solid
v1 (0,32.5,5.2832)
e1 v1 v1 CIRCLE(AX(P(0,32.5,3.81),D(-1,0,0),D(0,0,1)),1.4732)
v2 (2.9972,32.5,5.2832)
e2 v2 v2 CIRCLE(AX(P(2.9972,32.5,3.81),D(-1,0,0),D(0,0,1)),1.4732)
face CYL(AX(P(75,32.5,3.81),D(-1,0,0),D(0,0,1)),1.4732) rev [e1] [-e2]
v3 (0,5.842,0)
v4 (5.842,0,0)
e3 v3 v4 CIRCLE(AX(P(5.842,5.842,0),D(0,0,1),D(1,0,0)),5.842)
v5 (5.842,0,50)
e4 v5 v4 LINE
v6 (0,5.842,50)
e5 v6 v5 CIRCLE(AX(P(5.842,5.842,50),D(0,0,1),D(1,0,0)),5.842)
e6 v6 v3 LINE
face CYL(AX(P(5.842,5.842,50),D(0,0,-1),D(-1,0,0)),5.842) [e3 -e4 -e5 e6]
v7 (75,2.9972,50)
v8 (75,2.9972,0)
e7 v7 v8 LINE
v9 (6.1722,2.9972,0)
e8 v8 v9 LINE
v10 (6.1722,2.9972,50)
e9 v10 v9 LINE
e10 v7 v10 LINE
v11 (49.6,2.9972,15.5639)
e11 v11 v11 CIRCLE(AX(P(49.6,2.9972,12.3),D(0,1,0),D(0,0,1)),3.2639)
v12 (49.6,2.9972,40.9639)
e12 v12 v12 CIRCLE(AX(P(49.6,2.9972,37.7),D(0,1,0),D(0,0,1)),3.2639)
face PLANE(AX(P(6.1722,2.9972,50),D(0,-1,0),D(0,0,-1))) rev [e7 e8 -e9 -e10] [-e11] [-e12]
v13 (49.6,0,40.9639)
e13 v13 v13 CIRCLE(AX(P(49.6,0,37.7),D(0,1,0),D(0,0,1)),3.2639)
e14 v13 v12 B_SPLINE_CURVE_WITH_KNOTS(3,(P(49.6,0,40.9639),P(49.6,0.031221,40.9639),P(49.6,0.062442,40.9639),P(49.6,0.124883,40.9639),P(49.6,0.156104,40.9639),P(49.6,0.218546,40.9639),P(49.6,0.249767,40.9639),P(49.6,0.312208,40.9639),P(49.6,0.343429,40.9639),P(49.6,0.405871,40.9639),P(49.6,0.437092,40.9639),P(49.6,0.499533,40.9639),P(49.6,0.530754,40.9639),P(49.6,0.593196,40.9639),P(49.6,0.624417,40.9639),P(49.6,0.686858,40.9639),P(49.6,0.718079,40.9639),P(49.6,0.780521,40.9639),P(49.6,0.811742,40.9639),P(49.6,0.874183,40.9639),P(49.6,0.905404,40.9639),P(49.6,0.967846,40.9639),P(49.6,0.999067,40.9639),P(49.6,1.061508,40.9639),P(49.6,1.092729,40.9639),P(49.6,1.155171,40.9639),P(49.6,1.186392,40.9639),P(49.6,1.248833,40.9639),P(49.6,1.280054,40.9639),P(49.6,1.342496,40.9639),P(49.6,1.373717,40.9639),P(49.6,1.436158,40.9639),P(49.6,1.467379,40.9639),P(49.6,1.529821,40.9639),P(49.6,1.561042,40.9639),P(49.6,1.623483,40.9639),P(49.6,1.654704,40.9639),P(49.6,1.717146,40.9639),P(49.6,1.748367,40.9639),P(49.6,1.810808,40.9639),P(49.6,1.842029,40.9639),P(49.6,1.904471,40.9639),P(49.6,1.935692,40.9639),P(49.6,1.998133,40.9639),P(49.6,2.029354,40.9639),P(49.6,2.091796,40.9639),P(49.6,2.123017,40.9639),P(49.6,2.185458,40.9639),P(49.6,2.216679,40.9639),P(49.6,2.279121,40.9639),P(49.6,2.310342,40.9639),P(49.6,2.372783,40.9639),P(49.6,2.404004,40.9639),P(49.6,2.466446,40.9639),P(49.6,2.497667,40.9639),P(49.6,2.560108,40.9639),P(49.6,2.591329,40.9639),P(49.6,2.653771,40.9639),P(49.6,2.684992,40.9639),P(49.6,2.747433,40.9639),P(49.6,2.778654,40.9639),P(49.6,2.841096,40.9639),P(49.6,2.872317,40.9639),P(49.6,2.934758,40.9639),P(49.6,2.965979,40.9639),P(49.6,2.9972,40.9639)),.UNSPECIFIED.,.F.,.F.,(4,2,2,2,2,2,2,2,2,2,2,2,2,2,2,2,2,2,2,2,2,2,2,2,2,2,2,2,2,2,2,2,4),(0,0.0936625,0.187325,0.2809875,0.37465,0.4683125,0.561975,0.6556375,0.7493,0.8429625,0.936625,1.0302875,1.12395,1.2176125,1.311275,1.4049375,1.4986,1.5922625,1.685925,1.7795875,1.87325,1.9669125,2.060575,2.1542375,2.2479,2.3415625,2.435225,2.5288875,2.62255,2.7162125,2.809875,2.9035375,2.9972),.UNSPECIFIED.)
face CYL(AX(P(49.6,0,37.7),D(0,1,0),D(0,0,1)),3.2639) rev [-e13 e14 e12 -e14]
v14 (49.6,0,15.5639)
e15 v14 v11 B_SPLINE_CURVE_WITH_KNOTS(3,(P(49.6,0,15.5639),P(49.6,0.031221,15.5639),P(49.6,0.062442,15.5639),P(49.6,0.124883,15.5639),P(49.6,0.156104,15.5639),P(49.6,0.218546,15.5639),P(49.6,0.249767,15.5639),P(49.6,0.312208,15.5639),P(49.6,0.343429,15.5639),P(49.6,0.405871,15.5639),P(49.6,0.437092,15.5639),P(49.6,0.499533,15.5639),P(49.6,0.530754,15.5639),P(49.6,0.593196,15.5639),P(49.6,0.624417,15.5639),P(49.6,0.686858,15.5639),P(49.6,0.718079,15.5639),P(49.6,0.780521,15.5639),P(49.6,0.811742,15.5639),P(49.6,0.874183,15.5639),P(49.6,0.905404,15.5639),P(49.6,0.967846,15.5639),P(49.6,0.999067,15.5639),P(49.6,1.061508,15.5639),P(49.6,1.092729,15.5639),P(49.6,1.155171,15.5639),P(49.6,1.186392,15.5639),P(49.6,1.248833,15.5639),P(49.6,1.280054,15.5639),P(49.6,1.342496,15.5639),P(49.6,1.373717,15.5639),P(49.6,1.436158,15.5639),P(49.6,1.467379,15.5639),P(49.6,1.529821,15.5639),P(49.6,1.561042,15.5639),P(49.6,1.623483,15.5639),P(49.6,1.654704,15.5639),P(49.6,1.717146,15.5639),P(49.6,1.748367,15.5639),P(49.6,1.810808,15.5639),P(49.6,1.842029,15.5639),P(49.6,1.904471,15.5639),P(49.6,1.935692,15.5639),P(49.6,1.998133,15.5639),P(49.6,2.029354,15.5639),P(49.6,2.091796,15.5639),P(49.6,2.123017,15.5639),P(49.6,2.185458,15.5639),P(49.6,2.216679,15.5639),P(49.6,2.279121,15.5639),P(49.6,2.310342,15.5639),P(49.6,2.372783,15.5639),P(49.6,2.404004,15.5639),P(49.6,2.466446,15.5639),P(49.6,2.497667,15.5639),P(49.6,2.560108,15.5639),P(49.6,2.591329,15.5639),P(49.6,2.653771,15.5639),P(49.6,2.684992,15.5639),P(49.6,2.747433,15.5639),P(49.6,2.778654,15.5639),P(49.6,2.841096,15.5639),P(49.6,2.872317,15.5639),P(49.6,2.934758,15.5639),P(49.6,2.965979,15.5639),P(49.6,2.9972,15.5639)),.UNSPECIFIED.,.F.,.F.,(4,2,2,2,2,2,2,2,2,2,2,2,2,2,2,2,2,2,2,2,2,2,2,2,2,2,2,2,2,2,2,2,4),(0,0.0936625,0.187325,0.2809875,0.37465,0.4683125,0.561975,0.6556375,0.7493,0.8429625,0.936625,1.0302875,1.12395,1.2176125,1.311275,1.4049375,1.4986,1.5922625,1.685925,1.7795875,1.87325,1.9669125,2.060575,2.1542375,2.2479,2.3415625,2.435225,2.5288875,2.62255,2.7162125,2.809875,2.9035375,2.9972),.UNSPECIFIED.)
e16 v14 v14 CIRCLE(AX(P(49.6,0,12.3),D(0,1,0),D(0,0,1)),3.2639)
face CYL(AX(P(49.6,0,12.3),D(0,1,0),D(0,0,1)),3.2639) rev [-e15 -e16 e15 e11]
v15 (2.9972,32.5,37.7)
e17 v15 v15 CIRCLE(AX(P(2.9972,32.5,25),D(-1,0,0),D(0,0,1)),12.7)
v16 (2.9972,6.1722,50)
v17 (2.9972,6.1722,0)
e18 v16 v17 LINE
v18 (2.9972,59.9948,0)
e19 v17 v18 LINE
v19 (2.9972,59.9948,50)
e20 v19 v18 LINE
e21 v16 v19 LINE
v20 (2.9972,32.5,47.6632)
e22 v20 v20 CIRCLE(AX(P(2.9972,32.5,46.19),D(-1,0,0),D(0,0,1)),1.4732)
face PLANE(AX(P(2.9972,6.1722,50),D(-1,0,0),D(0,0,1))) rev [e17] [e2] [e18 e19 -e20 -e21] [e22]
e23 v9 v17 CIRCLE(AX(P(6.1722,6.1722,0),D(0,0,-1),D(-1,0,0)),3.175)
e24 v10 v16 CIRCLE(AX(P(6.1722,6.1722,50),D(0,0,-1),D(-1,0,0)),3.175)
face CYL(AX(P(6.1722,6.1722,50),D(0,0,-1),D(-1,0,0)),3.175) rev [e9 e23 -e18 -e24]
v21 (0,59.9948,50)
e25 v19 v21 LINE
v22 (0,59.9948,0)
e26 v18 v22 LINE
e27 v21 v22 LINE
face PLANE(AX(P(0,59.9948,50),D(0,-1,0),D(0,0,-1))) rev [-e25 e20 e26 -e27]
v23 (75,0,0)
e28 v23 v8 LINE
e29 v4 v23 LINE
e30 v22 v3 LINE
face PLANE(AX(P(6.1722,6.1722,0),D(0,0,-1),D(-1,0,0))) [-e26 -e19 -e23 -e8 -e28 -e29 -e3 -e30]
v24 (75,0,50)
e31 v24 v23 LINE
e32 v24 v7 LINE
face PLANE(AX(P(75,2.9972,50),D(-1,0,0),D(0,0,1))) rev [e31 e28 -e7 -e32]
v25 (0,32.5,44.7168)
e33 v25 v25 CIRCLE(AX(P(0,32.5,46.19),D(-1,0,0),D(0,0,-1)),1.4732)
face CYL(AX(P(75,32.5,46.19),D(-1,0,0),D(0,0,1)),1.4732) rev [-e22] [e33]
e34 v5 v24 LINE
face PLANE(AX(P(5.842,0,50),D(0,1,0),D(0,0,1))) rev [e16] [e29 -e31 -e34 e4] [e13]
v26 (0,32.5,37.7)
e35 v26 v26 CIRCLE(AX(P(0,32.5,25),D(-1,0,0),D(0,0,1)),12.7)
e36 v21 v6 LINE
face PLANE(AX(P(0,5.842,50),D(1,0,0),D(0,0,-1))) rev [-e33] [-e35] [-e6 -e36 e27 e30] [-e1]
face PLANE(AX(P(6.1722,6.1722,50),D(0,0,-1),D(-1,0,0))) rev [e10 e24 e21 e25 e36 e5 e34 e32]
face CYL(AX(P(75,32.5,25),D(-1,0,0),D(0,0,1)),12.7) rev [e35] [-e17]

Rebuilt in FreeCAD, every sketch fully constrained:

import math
import FreeCAD as App
import Part
import Sketcher
Q = App.Units.Quantity

doc = App.newDocument("Part")
params = doc.addObject("Spreadsheet::Sheet", "Params")
for row, (alias, value) in enumerate([
    ("sketch1_radius", "0.23 in"),
    ("sketch1_radius2", "0.125 in"),
    ("sketch1_width", "0.118 in"),
    ("sketch1_height", "2.132 in"),
    ("pad1_length", "50 mm"),
    ("sketch2_diameter", "0.257 in"),
    ("sketch3_diameter", "1 in"),
    ("sketch4_diameter", "0.116 in"),
], start=1):
    params.set(f"A{row}", alias)
    params.set(f"B{row}", "=" + value)
    params.setAlias(f"B{row}", alias)

body = doc.addObject("PartDesign::Body", "Body")

sketch1 = body.newObject("Sketcher::SketchObject", "Sketch")
sketch1.AttachmentSupport = (doc.getObject("XY_Plane"), [""])
sketch1.MapMode = "FlatFace"
sketch1.addGeometry([
    Part.LineSegment(App.Vector(0, 60, 0), App.Vector(0, 5.8, 0)),
    Part.ArcOfCircle(Part.Circle(App.Vector(5.8, 5.8, 0), App.Vector(0, 0, 1), 5.8), math.radians(180), math.radians(270)),
    Part.LineSegment(App.Vector(5.8, 0, 0), App.Vector(75, 0, 0)),
    Part.LineSegment(App.Vector(75, 0, 0), App.Vector(75, 3, 0)),
    Part.LineSegment(App.Vector(75, 3, 0), App.Vector(6.2, 3, 0)),
    Part.ArcOfCircle(Part.Circle(App.Vector(6.2, 6.2, 0), App.Vector(0, 0, 1), 3.2), math.radians(-180), math.radians(-90)),
    Part.LineSegment(App.Vector(3, 6.2, 0), App.Vector(3, 60, 0)),
    Part.LineSegment(App.Vector(3, 60, 0), App.Vector(0, 60, 0)),
], False)
sketch1.addConstraint([
    Sketcher.Constraint("Tangent", 0, 2, 1, 1),
    Sketcher.Constraint("Tangent", 1, 2, 2, 1),
    Sketcher.Constraint("Coincident", 2, 2, 3, 1),
    Sketcher.Constraint("Coincident", 3, 2, 4, 1),
    Sketcher.Constraint("Tangent", 4, 2, 5, 2),
    Sketcher.Constraint("Tangent", 5, 1, 6, 1),
    Sketcher.Constraint("Coincident", 6, 2, 7, 1),
    Sketcher.Constraint("Coincident", 7, 2, 0, 1),
    Sketcher.Constraint("Vertical", 0),
    Sketcher.Constraint("Horizontal", 2),
    Sketcher.Constraint("Vertical", 3),
    Sketcher.Constraint("Horizontal", 4),
    Sketcher.Constraint("Vertical", 6),
    Sketcher.Constraint("Horizontal", 7),
    Sketcher.Constraint("PointOnObject", 0, 2, -2),
    Sketcher.Constraint("PointOnObject", 1, 2, -1),
    Sketcher.Constraint("Equal", 7, 3),
    Sketcher.Constraint("Radius", 1, Q("0.23 in")),
    Sketcher.Constraint("Radius", 5, Q("0.125 in")),
    Sketcher.Constraint("DistanceX", 7, 2, 7, 1, Q("0.118 in")),
    Sketcher.Constraint("DistanceY", 0, 2, 0, 1, Q("2.132 in")),
    Sketcher.Constraint("DistanceX", 2, 1, 2, 2, 69.158),
])
sketch1.setExpression("Constraints[17]", "Params.sketch1_radius")
sketch1.setExpression("Constraints[18]", "Params.sketch1_radius2")
sketch1.setExpression("Constraints[19]", "Params.sketch1_width")
sketch1.setExpression("Constraints[20]", "Params.sketch1_height")
pad1 = body.newObject("PartDesign::Pad", "Pad")
pad1.Profile = sketch1
pad1.setExpression("Length", "Params.pad1_length")

sketch2 = body.newObject("Sketcher::SketchObject", "Sketch001")
sketch2.AttachmentSupport = (doc.getObject("XZ_Plane"), [""])
sketch2.MapMode = "FlatFace"
sketch2.AttachmentOffset = App.Placement(App.Vector(0, 0, -0.118 * 25.4), App.Rotation())
sketch2.addGeometry([
    Part.Circle(App.Vector(49.6, 12.3, 0), App.Vector(0, 0, 1), 3.3),
    Part.Circle(App.Vector(49.6, 37.7, 0), App.Vector(0, 0, 1), 3.3),
], False)
sketch2.addConstraint([
    Sketcher.Constraint("Equal", 0, 1),
    Sketcher.Constraint("Vertical", 0, 3, 1, 3),
    Sketcher.Constraint("Diameter", 0, Q("0.257 in")),
    Sketcher.Constraint("DistanceY", 0, 3, 1, 3, Q("1 in")),
    Sketcher.Constraint("DistanceX", -1, 1, 0, 3, 49.6),
    Sketcher.Constraint("DistanceY", -1, 1, 0, 3, 12.3),
])
sketch2.setExpression("Constraints[2]", "Params.sketch2_diameter")
pocket1 = body.newObject("PartDesign::Pocket", "Pocket")
pocket1.Profile = sketch2
pocket1.Type = "ThroughAll"
pocket1.Reversed = True

sketch3 = body.newObject("Sketcher::SketchObject", "Sketch002")
sketch3.AttachmentSupport = (doc.getObject("YZ_Plane"), [""])
sketch3.MapMode = "FlatFace"
sketch3.addGeometry(Part.Circle(App.Vector(32, 25, 0), App.Vector(0, 0, 1), 13), False)
sketch3.addConstraint([
    Sketcher.Constraint("Diameter", 0, Q("1 in")),
    Sketcher.Constraint("DistanceX", -1, 1, 0, 3, 32.5),
    Sketcher.Constraint("DistanceY", -1, 1, 0, 3, 25.0),
])
sketch3.setExpression("Constraints[0]", "Params.sketch3_diameter")
pocket2 = body.newObject("PartDesign::Pocket", "Pocket001")
pocket2.Profile = sketch3
pocket2.Type = "ThroughAll"
pocket2.Reversed = True

sketch4 = body.newObject("Sketcher::SketchObject", "Sketch003")
sketch4.AttachmentSupport = (doc.getObject("YZ_Plane"), [""])
sketch4.MapMode = "FlatFace"
sketch4.addGeometry([
    Part.Circle(App.Vector(32.5, 3.8, 0), App.Vector(0, 0, 1), 1.5),
    Part.Circle(App.Vector(32.5, 46.2, 0), App.Vector(0, 0, 1), 1.5),
], False)
sketch4.addConstraint([
    Sketcher.Constraint("Equal", 0, 1),
    Sketcher.Constraint("Vertical", 0, 3, 1, 3),
    Sketcher.Constraint("Diameter", 0, Q("0.116 in")),
    Sketcher.Constraint("DistanceY", -1, 1, 0, 3, Q("0.15 in")),
    Sketcher.Constraint("DistanceX", -1, 1, 0, 3, 32.5),
    Sketcher.Constraint("DistanceY", -1, 1, 1, 3, 46.19),
])
sketch4.setExpression("Constraints[2]", "Params.sketch4_diameter")
pocket3 = body.newObject("PartDesign::Pocket", "Pocket002")
pocket3.Profile = sketch4
pocket3.Type = "ThroughAll"
pocket3.Reversed = True

doc.recompute()
